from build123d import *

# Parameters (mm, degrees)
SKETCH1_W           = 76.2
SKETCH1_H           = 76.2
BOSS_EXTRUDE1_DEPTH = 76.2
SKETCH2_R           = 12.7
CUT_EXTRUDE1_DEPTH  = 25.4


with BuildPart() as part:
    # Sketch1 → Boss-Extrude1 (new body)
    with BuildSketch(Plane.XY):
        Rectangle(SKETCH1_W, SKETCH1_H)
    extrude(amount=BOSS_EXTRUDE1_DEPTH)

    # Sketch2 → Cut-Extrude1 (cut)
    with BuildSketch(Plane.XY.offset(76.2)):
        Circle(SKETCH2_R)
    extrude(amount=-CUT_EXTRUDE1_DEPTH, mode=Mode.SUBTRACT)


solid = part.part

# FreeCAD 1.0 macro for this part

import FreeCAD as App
import Part
import Sketcher

V = App.Vector
Q = App.Units.Quantity


def add_polygon(sketch, points):
    """Adds a closed chain of lines whose ends are joined by coincident constraints."""
    first, n = sketch.GeometryCount, len(points)
    for a, b in zip(points, points[1:] + points[:1]):
        sketch.addGeometry(Part.LineSegment(App.Vector(*a, 0), App.Vector(*b, 0)), False)
    for i in range(n):
        sketch.addConstraint(Sketcher.Constraint("Coincident", first + i, 2, first + (i + 1) % n, 1))

doc = App.newDocument("Part")
body = doc.addObject("PartDesign::Body", "Body")

# Sketch on XY plane
sketch1 = doc.addObject("Sketcher::SketchObject", "Sketch")
body.addObject(sketch1)
sketch1.AttachmentSupport = (doc.XY_Plane, [""])
sketch1.MapMode = "FlatFace"
add_polygon(sketch1, [(-38, 38), (-38, -38), (38, -38), (38, 38)])  # lines 0-3
sketch1.addConstraint(Sketcher.Constraint("Vertical", 0))
sketch1.addConstraint(Sketcher.Constraint("Horizontal", 1))
sketch1.addConstraint(Sketcher.Constraint("Vertical", 2))
sketch1.addConstraint(Sketcher.Constraint("Horizontal", 3))
sketch1.addConstraint(Sketcher.Constraint("Symmetric", 0, 2, 2, 2, -1, 1))
sketch1.addConstraint(Sketcher.Constraint("Equal", 3, 0))
sketch1.addConstraint(Sketcher.Constraint("DistanceX", 1, 1, 1, 2, Q("3 in")))
pad1 = doc.addObject("PartDesign::Pad", "Pad")
body.addObject(pad1)
pad1.Profile = sketch1
pad1.Length = Q("3 in")

# Sketch on XY plane
sketch2 = doc.addObject("Sketcher::SketchObject", "Sketch001")
body.addObject(sketch2)
sketch2.AttachmentSupport = (doc.XY_Plane, [""])
sketch2.MapMode = "FlatFace"
sketch2.AttachmentOffset = App.Placement(V(0, 0, 3 * 25.4), App.Rotation())
sketch2.addGeometry(Part.Circle(V(0, 0, 0), V(0, 0, 1), 13), False)
sketch2.addConstraint(Sketcher.Constraint("Coincident", 0, 3, -1, 1))
sketch2.addConstraint(Sketcher.Constraint("Diameter", 0, Q("1 in")))
pocket1 = doc.addObject("PartDesign::Pocket", "Pocket")
body.addObject(pocket1)
pocket1.Profile = sketch2
pocket1.Length = Q("1 in")

doc.recompute()
